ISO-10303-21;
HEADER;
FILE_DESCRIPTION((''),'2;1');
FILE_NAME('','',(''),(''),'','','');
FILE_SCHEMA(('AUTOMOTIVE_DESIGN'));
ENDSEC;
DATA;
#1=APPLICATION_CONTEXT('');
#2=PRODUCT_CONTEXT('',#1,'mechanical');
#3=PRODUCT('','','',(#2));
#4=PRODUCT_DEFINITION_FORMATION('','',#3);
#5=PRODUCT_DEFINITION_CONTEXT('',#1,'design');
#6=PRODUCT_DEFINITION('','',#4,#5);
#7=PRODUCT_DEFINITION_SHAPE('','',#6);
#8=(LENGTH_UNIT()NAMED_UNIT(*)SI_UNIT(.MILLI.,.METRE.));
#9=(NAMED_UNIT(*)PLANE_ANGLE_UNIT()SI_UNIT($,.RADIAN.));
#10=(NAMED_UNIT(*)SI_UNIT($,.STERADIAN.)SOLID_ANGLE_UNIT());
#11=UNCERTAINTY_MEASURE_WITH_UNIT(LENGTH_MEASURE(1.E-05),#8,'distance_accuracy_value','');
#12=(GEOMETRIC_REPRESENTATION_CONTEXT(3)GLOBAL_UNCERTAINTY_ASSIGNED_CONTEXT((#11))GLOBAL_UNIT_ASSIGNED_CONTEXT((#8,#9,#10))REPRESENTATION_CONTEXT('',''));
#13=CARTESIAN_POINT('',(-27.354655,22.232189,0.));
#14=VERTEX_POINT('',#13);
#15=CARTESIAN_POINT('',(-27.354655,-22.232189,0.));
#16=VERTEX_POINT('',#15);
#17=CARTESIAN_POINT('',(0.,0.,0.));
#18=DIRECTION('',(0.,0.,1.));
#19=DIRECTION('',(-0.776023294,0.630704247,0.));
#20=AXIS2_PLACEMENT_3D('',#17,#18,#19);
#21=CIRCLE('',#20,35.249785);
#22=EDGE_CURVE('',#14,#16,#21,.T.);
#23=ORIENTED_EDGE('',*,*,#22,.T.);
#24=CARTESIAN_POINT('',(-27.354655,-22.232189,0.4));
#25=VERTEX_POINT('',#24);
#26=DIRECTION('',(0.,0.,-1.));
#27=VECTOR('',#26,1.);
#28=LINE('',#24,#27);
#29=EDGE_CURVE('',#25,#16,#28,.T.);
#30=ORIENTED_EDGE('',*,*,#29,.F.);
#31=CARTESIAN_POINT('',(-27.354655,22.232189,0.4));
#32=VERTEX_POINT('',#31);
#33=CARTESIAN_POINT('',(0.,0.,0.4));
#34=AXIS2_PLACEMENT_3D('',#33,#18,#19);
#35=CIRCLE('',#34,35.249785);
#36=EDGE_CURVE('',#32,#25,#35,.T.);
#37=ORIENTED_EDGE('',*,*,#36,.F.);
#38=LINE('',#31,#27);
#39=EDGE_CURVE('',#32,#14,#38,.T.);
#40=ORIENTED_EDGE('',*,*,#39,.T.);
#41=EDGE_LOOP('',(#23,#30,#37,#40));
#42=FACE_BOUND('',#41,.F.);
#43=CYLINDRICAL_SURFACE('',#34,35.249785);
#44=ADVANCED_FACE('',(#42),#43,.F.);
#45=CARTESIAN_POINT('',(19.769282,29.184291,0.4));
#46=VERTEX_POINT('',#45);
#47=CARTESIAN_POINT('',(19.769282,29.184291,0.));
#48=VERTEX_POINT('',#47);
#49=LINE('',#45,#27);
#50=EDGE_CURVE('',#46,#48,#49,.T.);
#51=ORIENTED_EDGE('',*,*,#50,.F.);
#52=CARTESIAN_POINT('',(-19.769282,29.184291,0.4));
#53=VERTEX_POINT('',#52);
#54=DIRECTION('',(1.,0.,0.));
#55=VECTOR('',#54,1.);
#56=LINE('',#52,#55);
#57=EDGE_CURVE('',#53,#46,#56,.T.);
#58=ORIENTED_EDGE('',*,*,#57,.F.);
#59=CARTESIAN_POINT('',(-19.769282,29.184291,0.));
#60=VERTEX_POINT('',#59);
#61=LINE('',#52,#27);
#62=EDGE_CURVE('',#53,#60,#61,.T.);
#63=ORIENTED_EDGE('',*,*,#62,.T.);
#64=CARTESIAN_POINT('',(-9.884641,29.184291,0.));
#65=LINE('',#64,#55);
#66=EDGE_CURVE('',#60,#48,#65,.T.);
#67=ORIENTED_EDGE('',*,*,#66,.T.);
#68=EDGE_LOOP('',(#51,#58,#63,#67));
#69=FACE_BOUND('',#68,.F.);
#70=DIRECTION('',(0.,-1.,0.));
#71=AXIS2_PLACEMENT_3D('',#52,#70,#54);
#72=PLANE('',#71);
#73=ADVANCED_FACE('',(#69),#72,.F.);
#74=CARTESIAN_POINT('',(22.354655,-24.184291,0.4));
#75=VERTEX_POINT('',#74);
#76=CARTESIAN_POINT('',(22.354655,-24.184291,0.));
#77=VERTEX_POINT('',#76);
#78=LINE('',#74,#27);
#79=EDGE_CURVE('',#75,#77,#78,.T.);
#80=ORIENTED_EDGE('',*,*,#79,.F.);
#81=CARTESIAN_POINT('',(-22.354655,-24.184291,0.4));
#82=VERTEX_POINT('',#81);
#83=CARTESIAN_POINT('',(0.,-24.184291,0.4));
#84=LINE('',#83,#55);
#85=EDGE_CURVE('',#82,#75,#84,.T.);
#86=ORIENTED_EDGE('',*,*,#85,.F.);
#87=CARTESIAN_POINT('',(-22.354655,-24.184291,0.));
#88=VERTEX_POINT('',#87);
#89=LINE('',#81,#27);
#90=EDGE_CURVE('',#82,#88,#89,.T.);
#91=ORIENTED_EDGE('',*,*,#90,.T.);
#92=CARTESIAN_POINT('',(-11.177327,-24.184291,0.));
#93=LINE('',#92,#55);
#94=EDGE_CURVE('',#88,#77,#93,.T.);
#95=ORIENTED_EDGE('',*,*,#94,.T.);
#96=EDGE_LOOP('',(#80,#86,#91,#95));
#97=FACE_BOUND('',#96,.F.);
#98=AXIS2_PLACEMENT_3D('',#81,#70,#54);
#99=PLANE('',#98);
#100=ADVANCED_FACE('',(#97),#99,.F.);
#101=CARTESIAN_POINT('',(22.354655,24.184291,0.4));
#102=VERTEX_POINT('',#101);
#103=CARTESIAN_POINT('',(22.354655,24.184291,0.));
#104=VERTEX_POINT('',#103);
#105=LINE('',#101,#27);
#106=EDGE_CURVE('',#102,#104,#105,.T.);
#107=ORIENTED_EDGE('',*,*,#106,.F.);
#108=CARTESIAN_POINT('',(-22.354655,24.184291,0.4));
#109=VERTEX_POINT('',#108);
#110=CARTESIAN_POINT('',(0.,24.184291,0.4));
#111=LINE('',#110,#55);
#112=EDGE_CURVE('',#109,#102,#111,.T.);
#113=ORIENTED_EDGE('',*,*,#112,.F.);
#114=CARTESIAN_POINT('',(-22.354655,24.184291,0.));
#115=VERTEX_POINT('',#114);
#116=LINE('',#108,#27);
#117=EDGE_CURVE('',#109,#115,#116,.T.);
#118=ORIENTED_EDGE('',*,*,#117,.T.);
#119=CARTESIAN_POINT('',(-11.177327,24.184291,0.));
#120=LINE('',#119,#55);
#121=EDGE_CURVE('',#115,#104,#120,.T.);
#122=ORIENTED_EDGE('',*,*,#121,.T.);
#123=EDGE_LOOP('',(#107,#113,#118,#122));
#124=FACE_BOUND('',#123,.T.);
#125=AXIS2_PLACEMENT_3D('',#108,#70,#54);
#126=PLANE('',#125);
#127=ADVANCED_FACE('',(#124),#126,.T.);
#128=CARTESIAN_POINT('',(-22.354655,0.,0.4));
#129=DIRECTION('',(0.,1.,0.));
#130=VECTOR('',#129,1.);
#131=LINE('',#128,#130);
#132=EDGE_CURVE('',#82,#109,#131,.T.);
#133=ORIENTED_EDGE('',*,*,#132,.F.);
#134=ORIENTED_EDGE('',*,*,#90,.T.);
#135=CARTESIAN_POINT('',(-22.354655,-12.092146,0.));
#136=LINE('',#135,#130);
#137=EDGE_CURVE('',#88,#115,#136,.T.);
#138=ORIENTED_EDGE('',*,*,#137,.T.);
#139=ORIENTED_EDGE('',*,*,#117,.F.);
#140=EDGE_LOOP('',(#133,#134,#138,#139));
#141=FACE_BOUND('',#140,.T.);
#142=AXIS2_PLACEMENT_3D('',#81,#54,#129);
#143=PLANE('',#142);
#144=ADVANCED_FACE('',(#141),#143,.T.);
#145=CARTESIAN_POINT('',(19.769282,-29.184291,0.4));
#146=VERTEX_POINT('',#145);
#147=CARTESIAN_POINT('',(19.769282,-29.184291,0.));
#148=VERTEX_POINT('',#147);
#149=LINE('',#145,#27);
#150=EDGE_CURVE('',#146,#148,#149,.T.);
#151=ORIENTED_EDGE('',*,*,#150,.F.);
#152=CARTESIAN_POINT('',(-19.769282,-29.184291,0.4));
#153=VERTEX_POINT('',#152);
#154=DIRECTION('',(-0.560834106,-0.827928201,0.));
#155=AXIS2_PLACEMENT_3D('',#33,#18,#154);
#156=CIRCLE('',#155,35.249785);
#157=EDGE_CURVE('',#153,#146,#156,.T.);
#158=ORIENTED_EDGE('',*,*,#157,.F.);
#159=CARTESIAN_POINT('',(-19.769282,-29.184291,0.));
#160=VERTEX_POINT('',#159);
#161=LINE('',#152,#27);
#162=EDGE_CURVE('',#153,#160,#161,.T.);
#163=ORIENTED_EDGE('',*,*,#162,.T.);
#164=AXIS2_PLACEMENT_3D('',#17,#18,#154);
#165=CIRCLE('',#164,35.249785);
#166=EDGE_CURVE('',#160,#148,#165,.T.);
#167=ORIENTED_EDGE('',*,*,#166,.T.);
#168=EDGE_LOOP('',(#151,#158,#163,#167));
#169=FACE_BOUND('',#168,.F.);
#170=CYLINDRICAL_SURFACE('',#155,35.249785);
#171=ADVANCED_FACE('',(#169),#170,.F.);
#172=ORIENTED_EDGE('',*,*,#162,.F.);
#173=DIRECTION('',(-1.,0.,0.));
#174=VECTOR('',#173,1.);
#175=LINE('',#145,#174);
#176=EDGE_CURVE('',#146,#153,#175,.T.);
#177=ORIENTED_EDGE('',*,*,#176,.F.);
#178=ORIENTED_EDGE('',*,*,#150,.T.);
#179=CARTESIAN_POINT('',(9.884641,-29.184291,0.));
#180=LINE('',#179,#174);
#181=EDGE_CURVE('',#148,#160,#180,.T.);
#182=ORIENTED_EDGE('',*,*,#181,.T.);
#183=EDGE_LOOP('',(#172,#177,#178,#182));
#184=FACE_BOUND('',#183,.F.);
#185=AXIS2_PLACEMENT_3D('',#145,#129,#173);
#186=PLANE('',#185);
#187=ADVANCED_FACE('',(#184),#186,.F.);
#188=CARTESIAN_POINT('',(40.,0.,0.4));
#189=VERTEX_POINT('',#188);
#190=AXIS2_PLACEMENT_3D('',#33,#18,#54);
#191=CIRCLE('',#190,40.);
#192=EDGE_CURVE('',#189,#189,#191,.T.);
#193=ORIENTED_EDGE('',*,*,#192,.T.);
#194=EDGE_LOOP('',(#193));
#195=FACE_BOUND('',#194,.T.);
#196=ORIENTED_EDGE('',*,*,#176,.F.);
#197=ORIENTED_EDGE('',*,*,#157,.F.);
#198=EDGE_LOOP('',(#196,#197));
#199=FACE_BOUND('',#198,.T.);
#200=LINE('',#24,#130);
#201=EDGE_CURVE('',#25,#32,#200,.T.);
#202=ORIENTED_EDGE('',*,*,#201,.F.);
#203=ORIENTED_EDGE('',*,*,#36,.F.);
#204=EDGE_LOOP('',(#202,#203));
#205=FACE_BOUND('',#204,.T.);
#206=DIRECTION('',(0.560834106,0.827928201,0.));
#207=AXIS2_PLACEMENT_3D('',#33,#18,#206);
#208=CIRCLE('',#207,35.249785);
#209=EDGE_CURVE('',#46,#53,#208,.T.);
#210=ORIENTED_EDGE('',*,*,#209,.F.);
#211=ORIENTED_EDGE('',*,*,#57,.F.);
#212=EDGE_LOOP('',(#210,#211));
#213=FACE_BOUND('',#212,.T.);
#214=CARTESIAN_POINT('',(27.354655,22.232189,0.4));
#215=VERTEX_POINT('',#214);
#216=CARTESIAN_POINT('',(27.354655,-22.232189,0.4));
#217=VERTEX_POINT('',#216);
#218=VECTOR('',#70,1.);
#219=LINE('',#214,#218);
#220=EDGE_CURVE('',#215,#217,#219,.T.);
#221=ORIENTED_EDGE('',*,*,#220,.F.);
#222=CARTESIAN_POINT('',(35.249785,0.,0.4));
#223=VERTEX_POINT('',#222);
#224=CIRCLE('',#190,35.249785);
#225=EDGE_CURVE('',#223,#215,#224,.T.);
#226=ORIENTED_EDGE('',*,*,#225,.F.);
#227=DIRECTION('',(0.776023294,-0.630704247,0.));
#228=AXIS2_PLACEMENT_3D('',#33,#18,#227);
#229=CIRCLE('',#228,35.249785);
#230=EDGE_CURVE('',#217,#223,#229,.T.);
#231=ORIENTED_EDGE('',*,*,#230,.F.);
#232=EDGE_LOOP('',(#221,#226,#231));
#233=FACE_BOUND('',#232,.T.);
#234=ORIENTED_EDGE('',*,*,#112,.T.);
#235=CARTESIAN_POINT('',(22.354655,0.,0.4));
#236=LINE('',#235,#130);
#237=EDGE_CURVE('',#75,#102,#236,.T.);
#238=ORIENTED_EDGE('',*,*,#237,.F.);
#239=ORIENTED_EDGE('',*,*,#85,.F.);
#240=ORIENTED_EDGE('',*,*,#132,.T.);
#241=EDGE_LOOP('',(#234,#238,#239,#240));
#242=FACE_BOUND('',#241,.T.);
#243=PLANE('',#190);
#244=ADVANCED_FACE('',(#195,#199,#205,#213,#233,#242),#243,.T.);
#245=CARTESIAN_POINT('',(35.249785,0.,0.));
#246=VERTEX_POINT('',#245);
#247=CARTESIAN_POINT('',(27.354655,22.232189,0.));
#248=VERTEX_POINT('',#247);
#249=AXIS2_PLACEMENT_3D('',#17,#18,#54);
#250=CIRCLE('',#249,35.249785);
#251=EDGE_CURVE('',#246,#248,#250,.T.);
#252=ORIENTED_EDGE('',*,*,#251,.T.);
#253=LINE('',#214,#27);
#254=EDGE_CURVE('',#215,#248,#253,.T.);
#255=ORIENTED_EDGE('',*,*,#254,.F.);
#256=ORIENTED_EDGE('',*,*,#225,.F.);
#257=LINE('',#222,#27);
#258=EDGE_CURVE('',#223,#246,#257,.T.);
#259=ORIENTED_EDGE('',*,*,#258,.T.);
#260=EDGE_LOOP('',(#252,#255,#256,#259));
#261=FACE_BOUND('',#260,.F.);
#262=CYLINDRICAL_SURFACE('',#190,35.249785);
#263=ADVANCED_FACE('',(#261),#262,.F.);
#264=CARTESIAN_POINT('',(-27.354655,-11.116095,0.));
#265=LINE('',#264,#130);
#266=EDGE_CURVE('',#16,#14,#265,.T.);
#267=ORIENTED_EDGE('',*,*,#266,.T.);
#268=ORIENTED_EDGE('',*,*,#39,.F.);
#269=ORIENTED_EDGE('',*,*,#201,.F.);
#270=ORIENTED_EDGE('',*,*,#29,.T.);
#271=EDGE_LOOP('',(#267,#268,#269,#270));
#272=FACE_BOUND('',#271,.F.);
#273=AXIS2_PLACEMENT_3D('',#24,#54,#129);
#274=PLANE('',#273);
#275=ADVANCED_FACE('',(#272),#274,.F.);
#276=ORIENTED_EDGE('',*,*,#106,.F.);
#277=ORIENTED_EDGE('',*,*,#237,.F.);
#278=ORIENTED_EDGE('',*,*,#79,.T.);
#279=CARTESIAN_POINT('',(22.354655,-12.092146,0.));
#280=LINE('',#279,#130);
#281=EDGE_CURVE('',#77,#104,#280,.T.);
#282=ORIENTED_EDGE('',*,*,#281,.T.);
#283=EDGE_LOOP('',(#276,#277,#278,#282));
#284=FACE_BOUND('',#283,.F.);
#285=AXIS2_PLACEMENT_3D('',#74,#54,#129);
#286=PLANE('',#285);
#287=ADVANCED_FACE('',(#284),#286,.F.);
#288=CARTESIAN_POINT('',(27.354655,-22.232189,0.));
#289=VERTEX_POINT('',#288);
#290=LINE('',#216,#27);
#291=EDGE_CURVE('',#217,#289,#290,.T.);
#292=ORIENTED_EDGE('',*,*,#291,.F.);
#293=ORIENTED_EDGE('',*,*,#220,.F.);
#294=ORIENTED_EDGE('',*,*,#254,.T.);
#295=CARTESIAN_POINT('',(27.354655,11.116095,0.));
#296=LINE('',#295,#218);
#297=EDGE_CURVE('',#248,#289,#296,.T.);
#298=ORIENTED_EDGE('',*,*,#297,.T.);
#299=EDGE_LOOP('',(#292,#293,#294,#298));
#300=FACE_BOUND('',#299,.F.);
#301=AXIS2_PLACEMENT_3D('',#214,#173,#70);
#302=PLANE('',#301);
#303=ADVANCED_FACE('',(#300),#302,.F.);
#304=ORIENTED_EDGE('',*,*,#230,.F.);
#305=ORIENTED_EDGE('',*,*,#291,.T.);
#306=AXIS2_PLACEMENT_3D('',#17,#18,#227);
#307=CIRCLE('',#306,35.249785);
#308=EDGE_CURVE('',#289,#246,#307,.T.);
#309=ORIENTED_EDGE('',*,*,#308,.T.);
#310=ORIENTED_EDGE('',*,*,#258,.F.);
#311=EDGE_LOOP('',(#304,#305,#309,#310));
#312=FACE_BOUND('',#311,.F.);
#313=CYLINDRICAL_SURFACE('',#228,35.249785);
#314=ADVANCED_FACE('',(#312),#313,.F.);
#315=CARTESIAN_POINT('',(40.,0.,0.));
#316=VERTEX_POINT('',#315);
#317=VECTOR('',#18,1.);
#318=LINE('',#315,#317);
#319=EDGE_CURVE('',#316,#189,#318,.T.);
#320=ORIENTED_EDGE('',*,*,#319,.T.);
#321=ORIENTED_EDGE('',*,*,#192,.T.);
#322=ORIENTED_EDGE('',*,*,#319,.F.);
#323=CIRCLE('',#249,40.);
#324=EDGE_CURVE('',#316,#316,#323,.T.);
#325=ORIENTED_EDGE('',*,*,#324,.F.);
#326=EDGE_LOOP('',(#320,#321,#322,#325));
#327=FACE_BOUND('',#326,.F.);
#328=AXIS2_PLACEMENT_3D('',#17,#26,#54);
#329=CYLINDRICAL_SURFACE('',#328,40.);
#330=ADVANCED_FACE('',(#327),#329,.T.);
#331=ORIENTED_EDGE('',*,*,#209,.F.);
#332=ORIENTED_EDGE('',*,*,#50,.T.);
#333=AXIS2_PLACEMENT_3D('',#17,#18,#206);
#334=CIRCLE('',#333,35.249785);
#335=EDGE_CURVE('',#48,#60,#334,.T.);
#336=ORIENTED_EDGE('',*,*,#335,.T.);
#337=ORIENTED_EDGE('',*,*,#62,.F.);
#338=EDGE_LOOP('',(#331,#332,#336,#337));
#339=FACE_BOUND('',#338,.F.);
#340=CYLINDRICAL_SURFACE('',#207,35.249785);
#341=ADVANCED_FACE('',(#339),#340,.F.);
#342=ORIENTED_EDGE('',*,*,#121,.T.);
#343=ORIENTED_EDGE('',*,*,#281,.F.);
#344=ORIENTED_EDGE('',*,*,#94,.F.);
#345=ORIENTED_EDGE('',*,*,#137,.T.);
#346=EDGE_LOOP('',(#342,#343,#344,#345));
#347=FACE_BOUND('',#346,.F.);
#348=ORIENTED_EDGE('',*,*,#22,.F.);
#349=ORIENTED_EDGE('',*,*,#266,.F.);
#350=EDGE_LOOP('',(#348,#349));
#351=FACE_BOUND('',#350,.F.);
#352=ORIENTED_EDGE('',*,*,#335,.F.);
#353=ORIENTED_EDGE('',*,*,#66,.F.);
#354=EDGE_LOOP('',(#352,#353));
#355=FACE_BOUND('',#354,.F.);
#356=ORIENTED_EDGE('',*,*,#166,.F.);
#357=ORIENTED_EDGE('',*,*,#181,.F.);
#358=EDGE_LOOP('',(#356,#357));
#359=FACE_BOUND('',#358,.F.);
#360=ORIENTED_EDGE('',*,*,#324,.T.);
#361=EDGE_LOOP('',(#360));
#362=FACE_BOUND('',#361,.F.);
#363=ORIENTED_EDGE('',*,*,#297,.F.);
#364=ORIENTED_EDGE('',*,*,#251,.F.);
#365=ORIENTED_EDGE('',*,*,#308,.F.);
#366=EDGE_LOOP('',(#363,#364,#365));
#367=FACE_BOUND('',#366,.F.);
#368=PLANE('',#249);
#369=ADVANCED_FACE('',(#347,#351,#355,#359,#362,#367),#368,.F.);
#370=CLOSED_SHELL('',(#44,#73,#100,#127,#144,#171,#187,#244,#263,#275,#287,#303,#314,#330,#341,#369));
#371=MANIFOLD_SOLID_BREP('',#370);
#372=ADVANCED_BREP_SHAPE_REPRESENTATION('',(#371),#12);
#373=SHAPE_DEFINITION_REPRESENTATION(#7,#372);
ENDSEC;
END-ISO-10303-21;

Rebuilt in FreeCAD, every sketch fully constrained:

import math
import FreeCAD as App
import Part
import Sketcher

V = App.Vector


def add_polygon(sketch, points):
    """Adds a closed chain of lines whose ends are joined by coincident constraints."""
    first, n = sketch.GeometryCount, len(points)
    for a, b in zip(points, points[1:] + points[:1]):
        sketch.addGeometry(Part.LineSegment(App.Vector(*a, 0), App.Vector(*b, 0)), False)
    for i in range(n):
        sketch.addConstraint(Sketcher.Constraint("Coincident", first + i, 2, first + (i + 1) % n, 1))

doc = App.newDocument("Part")
body = doc.addObject("PartDesign::Body", "Body")

# Sketch on XY plane
sketch1 = body.newObject("Sketcher::SketchObject", "Sketch")
sketch1.AttachmentSupport = (doc.getObject("XY_Plane"), [""])
sketch1.MapMode = "FlatFace"
sketch1.addGeometry(Part.Circle(V(0, 0, 0), V(0, 0, 1), 40), False)
sketch1.addConstraint(Sketcher.Constraint("Coincident", 0, 3, -1, 1))
sketch1.addConstraint(Sketcher.Constraint("Diameter", 0, 80.0))
pad1 = body.newObject("PartDesign::Pad", "Pad")
pad1.Profile = sketch1
pad1.Length = 0.4

# Sketch on XY plane
sketch2 = body.newObject("Sketcher::SketchObject", "Sketch001")
sketch2.AttachmentSupport = (doc.getObject("XY_Plane"), [""])
sketch2.MapMode = "FlatFace"
sketch2.AttachmentOffset = App.Placement(V(0, 0, 0.4), App.Rotation())
add_polygon(sketch2, [(-22.354655, 24.184291), (-22.354655, -24.184291), (22.354655, -24.184291), (22.354655, 24.184291)])  # lines 0-3
sketch2.addGeometry(Part.LineSegment(V(-27.354655, -22.232189, 0), V(-27.354655, 22.232189, 0)), False)  # 4
sketch2.addGeometry(Part.ArcOfCircle(Part.Circle(V(0, 0, 0), V(0, 0, 1), 35.249785), math.radians(140.8979), math.radians(219.1021)), False)  # 5
sketch2.addGeometry(Part.ArcOfCircle(Part.Circle(V(0, 0, 0), V(0, 0, 1), 35.249785), math.radians(55.886499), math.radians(124.113501)), False)  # 6
sketch2.addGeometry(Part.LineSegment(V(-19.769282, 29.184291, 0), V(19.769282, 29.184291, 0)), False)  # 7
sketch2.addGeometry(Part.ArcOfCircle(Part.Circle(V(0, 0, 0), V(0, 0, 1), 35.249785), math.radians(0), math.radians(39.1021)), False)  # 8
sketch2.addGeometry(Part.LineSegment(V(27.354655, 22.232189, 0), V(27.354655, -22.232189, 0)), False)  # 9
sketch2.addGeometry(Part.ArcOfCircle(Part.Circle(V(0, 0, 0), V(0, 0, 1), 35.249785), math.radians(-39.1021), math.radians(0)), False)  # 10
sketch2.addGeometry(Part.LineSegment(V(19.769282, -29.184291, 0), V(-19.769282, -29.184291, 0)), False)  # 11
sketch2.addGeometry(Part.ArcOfCircle(Part.Circle(V(0, 0, 0), V(0, 0, 1), 35.249785), math.radians(-124.113501), math.radians(-55.886499)), False)  # 12
sketch2.addConstraint(Sketcher.Constraint("Coincident", 4, 1, 5, 2))
sketch2.addConstraint(Sketcher.Constraint("Coincident", 5, 1, 4, 2))
sketch2.addConstraint(Sketcher.Constraint("Coincident", 6, 1, 7, 2))
sketch2.addConstraint(Sketcher.Constraint("Coincident", 7, 1, 6, 2))
sketch2.addConstraint(Sketcher.Constraint("Coincident", 8, 2, 9, 1))
sketch2.addConstraint(Sketcher.Constraint("Coincident", 9, 2, 10, 1))
sketch2.addConstraint(Sketcher.Constraint("Tangent", 10, 2, 8, 1))
sketch2.addConstraint(Sketcher.Constraint("Coincident", 11, 1, 12, 2))
sketch2.addConstraint(Sketcher.Constraint("Coincident", 12, 1, 11, 2))
sketch2.addConstraint(Sketcher.Constraint("Vertical", 0))
sketch2.addConstraint(Sketcher.Constraint("Horizontal", 1))
sketch2.addConstraint(Sketcher.Constraint("Vertical", 2))
sketch2.addConstraint(Sketcher.Constraint("Horizontal", 3))
sketch2.addConstraint(Sketcher.Constraint("Vertical", 4))
sketch2.addConstraint(Sketcher.Constraint("Horizontal", 7))
sketch2.addConstraint(Sketcher.Constraint("Vertical", 9))
sketch2.addConstraint(Sketcher.Constraint("Horizontal", 11))
sketch2.addConstraint(Sketcher.Constraint("Coincident", 5, 3, -1, 1))
sketch2.addConstraint(Sketcher.Constraint("Coincident", 6, 3, -1, 1))
sketch2.addConstraint(Sketcher.Constraint("Coincident", 8, 3, -1, 1))
sketch2.addConstraint(Sketcher.Constraint("Coincident", 12, 3, -1, 1))
sketch2.addConstraint(Sketcher.Constraint("Equal", 5, 6))
sketch2.addConstraint(Sketcher.Constraint("Equal", 6, 8))
sketch2.addConstraint(Sketcher.Constraint("Equal", 8, 10))
sketch2.addConstraint(Sketcher.Constraint("Equal", 10, 12))
sketch2.addConstraint(Sketcher.Constraint("Symmetric", 0, 2, 2, 2, -1, 1))
sketch2.addConstraint(Sketcher.Constraint("PointOnObject", 10, 2, -1))
sketch2.addConstraint(Sketcher.Constraint("Horizontal", 5, 1, 8, 2))
sketch2.addConstraint(Sketcher.Constraint("Vertical", 6, 1, 11, 1))
sketch2.addConstraint(Sketcher.Constraint("DistanceX", 4, 1, 0, 2, 5.0))
sketch2.addConstraint(Sketcher.Constraint("DistanceY", 2, 2, 6, 1, 5.0))
sketch2.addConstraint(Sketcher.Constraint("Radius", 5, 35.249785))
sketch2.addConstraint(Sketcher.Constraint("DistanceX", 1, 1, 1, 2, 44.709309))
sketch2.addConstraint(Sketcher.Constraint("DistanceX", 7, 1, 7, 2, 39.538564))
pocket1 = body.newObject("PartDesign::Pocket", "Pocket")
pocket1.Profile = sketch2
pocket1.Length = 25

doc.recompute()
